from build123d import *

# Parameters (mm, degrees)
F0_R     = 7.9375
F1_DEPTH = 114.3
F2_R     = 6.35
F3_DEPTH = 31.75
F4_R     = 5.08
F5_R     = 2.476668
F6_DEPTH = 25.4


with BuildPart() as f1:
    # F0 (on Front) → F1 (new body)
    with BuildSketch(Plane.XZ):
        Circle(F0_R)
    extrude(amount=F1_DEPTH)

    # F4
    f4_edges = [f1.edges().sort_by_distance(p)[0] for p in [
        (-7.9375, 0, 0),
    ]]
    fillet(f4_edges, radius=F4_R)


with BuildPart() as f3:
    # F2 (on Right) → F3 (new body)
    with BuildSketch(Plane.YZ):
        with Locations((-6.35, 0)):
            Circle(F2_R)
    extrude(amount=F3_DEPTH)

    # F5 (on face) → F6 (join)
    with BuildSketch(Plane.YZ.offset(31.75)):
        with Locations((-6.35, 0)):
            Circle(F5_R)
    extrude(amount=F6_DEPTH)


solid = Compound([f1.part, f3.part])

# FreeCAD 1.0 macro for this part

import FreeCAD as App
import Part
import Sketcher

V = App.Vector
Q = App.Units.Quantity


def edges_at(feature, points):
    """Names of the edges that pass closest to the given points."""
    edges = feature.Shape.Edges
    near = lambda p: min(range(len(edges)), key=lambda i: edges[i].distToShape(Part.Vertex(*p))[0])
    return sorted({f"Edge{near(p) + 1}" for p in points})

doc = App.newDocument("Part")
body = doc.addObject("PartDesign::Body", "Body")

# Sketch on XZ plane
sketch1 = body.newObject("Sketcher::SketchObject", "Sketch")
sketch1.AttachmentSupport = (doc.getObject("XZ_Plane"), [""])
sketch1.MapMode = "FlatFace"
sketch1.addGeometry(Part.Circle(V(0, 0, 0), V(0, 0, 1), 8), False)
sketch1.addConstraint([
    Sketcher.Constraint("Coincident", 0, 3, -1, 1),
    Sketcher.Constraint("Diameter", 0, Q("0.625 in")),
])
pad1 = body.newObject("PartDesign::Pad", "Pad")
pad1.Profile = sketch1
pad1.Length = Q("4.5 in")
doc.recompute()

fillet = body.newObject("PartDesign::Fillet", "Fillet")
fillet.Base = (pad1, edges_at(pad1, [(-7.938, 0, 0)]))
fillet.Radius = Q("0.2 in")
body2 = doc.addObject("PartDesign::Body", "Body001")

# Sketch on YZ plane
sketch2 = body2.newObject("Sketcher::SketchObject", "Sketch001")
sketch2.AttachmentSupport = (doc.getObject("YZ_Plane001"), [""])
sketch2.MapMode = "FlatFace"
sketch2.addGeometry(Part.Circle(V(-6, 0, 0), V(0, 0, 1), 6), False)
sketch2.addConstraint([
    Sketcher.Constraint("PointOnObject", 0, 3, -1),
    Sketcher.Constraint("Diameter", 0, Q("0.5 in")),
    Sketcher.Constraint("DistanceX", 0, 3, -1, 1, Q("0.25 in")),
])
pad2 = body2.newObject("PartDesign::Pad", "Pad001")
pad2.Profile = sketch2
pad2.Length = Q("1.25 in")

# Sketch on YZ plane
sketch3 = body2.newObject("Sketcher::SketchObject", "Sketch002")
sketch3.AttachmentSupport = (doc.getObject("YZ_Plane001"), [""])
sketch3.MapMode = "FlatFace"
sketch3.AttachmentOffset = App.Placement(V(0, 0, 1.25 * 25.4), App.Rotation())
sketch3.addGeometry(Part.Circle(V(-6.3, 0, 0), V(0, 0, 1), 2.5), False)
sketch3.addConstraint([
    Sketcher.Constraint("PointOnObject", 0, 3, -1),
    Sketcher.Constraint("DistanceX", 0, 3, -1, 1, Q("0.25 in")),
    Sketcher.Constraint("Diameter", 0, Q("4.953336 mm")),
])
pad3 = body2.newObject("PartDesign::Pad", "Pad002")
pad3.Profile = sketch3
pad3.Length = Q("1 in")

doc.recompute()
